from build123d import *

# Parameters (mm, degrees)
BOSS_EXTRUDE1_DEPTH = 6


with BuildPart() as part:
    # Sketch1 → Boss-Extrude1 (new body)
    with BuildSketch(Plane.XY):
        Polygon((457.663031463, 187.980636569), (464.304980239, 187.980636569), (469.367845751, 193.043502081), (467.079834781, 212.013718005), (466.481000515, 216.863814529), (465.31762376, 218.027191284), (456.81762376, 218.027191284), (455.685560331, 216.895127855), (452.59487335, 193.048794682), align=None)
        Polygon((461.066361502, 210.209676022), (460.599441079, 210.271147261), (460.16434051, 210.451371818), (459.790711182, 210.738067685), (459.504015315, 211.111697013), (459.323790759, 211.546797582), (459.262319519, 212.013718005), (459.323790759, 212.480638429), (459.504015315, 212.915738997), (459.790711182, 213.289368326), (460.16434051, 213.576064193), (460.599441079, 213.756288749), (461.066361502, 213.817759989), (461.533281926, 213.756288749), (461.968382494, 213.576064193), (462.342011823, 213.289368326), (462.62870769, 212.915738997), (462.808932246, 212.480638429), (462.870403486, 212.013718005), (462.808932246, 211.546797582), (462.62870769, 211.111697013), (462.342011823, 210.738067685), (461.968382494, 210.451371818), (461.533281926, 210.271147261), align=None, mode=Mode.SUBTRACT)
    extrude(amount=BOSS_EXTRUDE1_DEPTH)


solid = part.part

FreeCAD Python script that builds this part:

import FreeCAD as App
import Part
import Sketcher
Q = App.Units.Quantity


def add_polygon(sketch, points):
    """Adds a closed chain of lines whose ends are joined by coincident constraints."""
    first, n = sketch.GeometryCount, len(points)
    for a, b in zip(points, points[1:] + points[:1]):
        sketch.addGeometry(Part.LineSegment(App.Vector(*a, 0), App.Vector(*b, 0)), False)
    for i in range(n):
        sketch.addConstraint(Sketcher.Constraint("Coincident", first + i, 2, first + (i + 1) % n, 1))

doc = App.newDocument("Part")
body = doc.addObject("PartDesign::Body", "Body")

# Sketch on XY plane
sketch1 = doc.addObject("Sketcher::SketchObject", "Sketch")
body.addObject(sketch1)
sketch1.AttachmentSupport = (doc.XY_Plane, [""])
sketch1.MapMode = "FlatFace"
add_polygon(sketch1, [(457.66, 187.98), (464.3, 187.98), (469.37, 193.04), (467.08, 212.01), (466.48, 216.86), (465.32, 218.03), (456.82, 218.03), (455.69, 216.9), (452.59, 193.05)])  # lines 0-8
add_polygon(sketch1, [(461.53, 210.27), (461.07, 210.21), (460.6, 210.27), (460.16, 210.45), (459.79, 210.74), (459.5, 211.11), (459.32, 211.55), (459.26, 212.01), (459.32, 212.48), (459.5, 212.92), (459.79, 213.29), (460.16, 213.58), (460.6, 213.76), (461.07, 213.82), (461.53, 213.76), (461.97, 213.58), (462.34, 213.29), (462.63, 212.92), (462.81, 212.48), (462.87, 212.01), (462.81, 211.55), (462.63, 211.11), (462.34, 210.74), (461.97, 210.45)])  # lines 9-32
sketch1.addConstraint([
    Sketcher.Constraint("Horizontal", 0),
    Sketcher.Constraint("Horizontal", 5),
    Sketcher.Constraint("Perpendicular", 1, 4),
    Sketcher.Constraint("Perpendicular", 4, 6),
    Sketcher.Constraint("Perpendicular", 6, 8),
    Sketcher.Constraint("Perpendicular", 9, 15),
    Sketcher.Constraint("Perpendicular", 10, 16),
    Sketcher.Constraint("Perpendicular", 11, 17),
    Sketcher.Constraint("Perpendicular", 12, 18),
    Sketcher.Constraint("Perpendicular", 13, 19),
    Sketcher.Constraint("Perpendicular", 14, 20),
    Sketcher.Constraint("Perpendicular", 15, 21),
    Sketcher.Constraint("Perpendicular", 16, 22),
    Sketcher.Constraint("Perpendicular", 17, 23),
    Sketcher.Constraint("Perpendicular", 18, 24),
    Sketcher.Constraint("Perpendicular", 19, 25),
    Sketcher.Constraint("Perpendicular", 20, 26),
    Sketcher.Constraint("Perpendicular", 21, 27),
    Sketcher.Constraint("Perpendicular", 22, 28),
    Sketcher.Constraint("Perpendicular", 23, 29),
    Sketcher.Constraint("Perpendicular", 24, 30),
    Sketcher.Constraint("Perpendicular", 25, 31),
    Sketcher.Constraint("Perpendicular", 26, 32),
    Sketcher.Constraint("Horizontal", 2, 2, 15, 2),
    Sketcher.Constraint("Horizontal", 20, 2, 22, 2),
    Sketcher.Constraint("Horizontal", 19, 2, 23, 2),
    Sketcher.Constraint("Horizontal", 18, 2, 24, 2),
    Sketcher.Constraint("Horizontal", 17, 2, 25, 2),
    Sketcher.Constraint("Horizontal", 16, 2, 26, 2),
    Sketcher.Constraint("Horizontal", 15, 2, 27, 2),
    Sketcher.Constraint("Horizontal", 14, 2, 28, 2),
    Sketcher.Constraint("Horizontal", 13, 2, 29, 2),
    Sketcher.Constraint("Horizontal", 12, 2, 30, 2),
    Sketcher.Constraint("Horizontal", 11, 2, 31, 2),
    Sketcher.Constraint("Horizontal", 10, 2, 32, 2),
    Sketcher.Constraint("Vertical", 14, 2, 16, 2),
    Sketcher.Constraint("Vertical", 13, 2, 17, 2),
    Sketcher.Constraint("Vertical", 12, 2, 18, 2),
    Sketcher.Constraint("Vertical", 11, 2, 19, 2),
    Sketcher.Constraint("Vertical", 10, 2, 20, 2),
    Sketcher.Constraint("Vertical", 9, 2, 21, 2),
    Sketcher.Constraint("Vertical", 26, 2, 28, 2),
    Sketcher.Constraint("Vertical", 25, 2, 29, 2),
    Sketcher.Constraint("Equal", 10, 11),
    Sketcher.Constraint("Equal", 11, 12),
    Sketcher.Constraint("Equal", 12, 13),
    Sketcher.Constraint("Equal", 13, 14),
    Sketcher.Constraint("Equal", 14, 15),
    Sketcher.Constraint("Angle", 1, Q("45 deg")),
    Sketcher.Constraint("DistanceX", 5, 2, 5, 1, 8.5),
    Sketcher.Constraint("Angle", 9, Q("-172.5 deg")),
    Sketcher.Constraint("Angle", 11, Q("157.5 deg")),
    Sketcher.Constraint("Angle", 12, Q("142.5 deg")),
    Sketcher.Constraint("DistanceX", -1, 1, 3, 2, 466.481001),
    Sketcher.Constraint("DistanceX", 0, 1, 0, 2, 6.641949),
    Sketcher.Constraint("DistanceX", 6, 2, 9, 2, 5.380801),
    Sketcher.Constraint("DistanceX", 11, 2, 10, 2, 0.435101),
    Sketcher.Constraint("Distance", 6, 1.600979),
    Sketcher.Constraint("Distance", 7, 24.045789),
    Sketcher.Constraint("DistanceX", -1, 1, 0, 2, 464.30498),
    Sketcher.Constraint("DistanceY", -1, 1, 2, 2, 212.013718),
    Sketcher.Constraint("DistanceY", -1, 1, 4, 2, 218.027191),
    Sketcher.Constraint("DistanceX", -1, 1, 6, 2, 455.68556),
    Sketcher.Constraint("DistanceX", 2, 2, 1, 2, 2.288011),
    Sketcher.Constraint("DistanceY", 0, 2, 2, 2, 24.033081),
    Sketcher.Constraint("DistanceX", 4, 2, 2, 2, 1.762211),
])
pad1 = doc.addObject("PartDesign::Pad", "Pad")
body.addObject(pad1)
pad1.Profile = sketch1
pad1.Length = 6

doc.recompute()
